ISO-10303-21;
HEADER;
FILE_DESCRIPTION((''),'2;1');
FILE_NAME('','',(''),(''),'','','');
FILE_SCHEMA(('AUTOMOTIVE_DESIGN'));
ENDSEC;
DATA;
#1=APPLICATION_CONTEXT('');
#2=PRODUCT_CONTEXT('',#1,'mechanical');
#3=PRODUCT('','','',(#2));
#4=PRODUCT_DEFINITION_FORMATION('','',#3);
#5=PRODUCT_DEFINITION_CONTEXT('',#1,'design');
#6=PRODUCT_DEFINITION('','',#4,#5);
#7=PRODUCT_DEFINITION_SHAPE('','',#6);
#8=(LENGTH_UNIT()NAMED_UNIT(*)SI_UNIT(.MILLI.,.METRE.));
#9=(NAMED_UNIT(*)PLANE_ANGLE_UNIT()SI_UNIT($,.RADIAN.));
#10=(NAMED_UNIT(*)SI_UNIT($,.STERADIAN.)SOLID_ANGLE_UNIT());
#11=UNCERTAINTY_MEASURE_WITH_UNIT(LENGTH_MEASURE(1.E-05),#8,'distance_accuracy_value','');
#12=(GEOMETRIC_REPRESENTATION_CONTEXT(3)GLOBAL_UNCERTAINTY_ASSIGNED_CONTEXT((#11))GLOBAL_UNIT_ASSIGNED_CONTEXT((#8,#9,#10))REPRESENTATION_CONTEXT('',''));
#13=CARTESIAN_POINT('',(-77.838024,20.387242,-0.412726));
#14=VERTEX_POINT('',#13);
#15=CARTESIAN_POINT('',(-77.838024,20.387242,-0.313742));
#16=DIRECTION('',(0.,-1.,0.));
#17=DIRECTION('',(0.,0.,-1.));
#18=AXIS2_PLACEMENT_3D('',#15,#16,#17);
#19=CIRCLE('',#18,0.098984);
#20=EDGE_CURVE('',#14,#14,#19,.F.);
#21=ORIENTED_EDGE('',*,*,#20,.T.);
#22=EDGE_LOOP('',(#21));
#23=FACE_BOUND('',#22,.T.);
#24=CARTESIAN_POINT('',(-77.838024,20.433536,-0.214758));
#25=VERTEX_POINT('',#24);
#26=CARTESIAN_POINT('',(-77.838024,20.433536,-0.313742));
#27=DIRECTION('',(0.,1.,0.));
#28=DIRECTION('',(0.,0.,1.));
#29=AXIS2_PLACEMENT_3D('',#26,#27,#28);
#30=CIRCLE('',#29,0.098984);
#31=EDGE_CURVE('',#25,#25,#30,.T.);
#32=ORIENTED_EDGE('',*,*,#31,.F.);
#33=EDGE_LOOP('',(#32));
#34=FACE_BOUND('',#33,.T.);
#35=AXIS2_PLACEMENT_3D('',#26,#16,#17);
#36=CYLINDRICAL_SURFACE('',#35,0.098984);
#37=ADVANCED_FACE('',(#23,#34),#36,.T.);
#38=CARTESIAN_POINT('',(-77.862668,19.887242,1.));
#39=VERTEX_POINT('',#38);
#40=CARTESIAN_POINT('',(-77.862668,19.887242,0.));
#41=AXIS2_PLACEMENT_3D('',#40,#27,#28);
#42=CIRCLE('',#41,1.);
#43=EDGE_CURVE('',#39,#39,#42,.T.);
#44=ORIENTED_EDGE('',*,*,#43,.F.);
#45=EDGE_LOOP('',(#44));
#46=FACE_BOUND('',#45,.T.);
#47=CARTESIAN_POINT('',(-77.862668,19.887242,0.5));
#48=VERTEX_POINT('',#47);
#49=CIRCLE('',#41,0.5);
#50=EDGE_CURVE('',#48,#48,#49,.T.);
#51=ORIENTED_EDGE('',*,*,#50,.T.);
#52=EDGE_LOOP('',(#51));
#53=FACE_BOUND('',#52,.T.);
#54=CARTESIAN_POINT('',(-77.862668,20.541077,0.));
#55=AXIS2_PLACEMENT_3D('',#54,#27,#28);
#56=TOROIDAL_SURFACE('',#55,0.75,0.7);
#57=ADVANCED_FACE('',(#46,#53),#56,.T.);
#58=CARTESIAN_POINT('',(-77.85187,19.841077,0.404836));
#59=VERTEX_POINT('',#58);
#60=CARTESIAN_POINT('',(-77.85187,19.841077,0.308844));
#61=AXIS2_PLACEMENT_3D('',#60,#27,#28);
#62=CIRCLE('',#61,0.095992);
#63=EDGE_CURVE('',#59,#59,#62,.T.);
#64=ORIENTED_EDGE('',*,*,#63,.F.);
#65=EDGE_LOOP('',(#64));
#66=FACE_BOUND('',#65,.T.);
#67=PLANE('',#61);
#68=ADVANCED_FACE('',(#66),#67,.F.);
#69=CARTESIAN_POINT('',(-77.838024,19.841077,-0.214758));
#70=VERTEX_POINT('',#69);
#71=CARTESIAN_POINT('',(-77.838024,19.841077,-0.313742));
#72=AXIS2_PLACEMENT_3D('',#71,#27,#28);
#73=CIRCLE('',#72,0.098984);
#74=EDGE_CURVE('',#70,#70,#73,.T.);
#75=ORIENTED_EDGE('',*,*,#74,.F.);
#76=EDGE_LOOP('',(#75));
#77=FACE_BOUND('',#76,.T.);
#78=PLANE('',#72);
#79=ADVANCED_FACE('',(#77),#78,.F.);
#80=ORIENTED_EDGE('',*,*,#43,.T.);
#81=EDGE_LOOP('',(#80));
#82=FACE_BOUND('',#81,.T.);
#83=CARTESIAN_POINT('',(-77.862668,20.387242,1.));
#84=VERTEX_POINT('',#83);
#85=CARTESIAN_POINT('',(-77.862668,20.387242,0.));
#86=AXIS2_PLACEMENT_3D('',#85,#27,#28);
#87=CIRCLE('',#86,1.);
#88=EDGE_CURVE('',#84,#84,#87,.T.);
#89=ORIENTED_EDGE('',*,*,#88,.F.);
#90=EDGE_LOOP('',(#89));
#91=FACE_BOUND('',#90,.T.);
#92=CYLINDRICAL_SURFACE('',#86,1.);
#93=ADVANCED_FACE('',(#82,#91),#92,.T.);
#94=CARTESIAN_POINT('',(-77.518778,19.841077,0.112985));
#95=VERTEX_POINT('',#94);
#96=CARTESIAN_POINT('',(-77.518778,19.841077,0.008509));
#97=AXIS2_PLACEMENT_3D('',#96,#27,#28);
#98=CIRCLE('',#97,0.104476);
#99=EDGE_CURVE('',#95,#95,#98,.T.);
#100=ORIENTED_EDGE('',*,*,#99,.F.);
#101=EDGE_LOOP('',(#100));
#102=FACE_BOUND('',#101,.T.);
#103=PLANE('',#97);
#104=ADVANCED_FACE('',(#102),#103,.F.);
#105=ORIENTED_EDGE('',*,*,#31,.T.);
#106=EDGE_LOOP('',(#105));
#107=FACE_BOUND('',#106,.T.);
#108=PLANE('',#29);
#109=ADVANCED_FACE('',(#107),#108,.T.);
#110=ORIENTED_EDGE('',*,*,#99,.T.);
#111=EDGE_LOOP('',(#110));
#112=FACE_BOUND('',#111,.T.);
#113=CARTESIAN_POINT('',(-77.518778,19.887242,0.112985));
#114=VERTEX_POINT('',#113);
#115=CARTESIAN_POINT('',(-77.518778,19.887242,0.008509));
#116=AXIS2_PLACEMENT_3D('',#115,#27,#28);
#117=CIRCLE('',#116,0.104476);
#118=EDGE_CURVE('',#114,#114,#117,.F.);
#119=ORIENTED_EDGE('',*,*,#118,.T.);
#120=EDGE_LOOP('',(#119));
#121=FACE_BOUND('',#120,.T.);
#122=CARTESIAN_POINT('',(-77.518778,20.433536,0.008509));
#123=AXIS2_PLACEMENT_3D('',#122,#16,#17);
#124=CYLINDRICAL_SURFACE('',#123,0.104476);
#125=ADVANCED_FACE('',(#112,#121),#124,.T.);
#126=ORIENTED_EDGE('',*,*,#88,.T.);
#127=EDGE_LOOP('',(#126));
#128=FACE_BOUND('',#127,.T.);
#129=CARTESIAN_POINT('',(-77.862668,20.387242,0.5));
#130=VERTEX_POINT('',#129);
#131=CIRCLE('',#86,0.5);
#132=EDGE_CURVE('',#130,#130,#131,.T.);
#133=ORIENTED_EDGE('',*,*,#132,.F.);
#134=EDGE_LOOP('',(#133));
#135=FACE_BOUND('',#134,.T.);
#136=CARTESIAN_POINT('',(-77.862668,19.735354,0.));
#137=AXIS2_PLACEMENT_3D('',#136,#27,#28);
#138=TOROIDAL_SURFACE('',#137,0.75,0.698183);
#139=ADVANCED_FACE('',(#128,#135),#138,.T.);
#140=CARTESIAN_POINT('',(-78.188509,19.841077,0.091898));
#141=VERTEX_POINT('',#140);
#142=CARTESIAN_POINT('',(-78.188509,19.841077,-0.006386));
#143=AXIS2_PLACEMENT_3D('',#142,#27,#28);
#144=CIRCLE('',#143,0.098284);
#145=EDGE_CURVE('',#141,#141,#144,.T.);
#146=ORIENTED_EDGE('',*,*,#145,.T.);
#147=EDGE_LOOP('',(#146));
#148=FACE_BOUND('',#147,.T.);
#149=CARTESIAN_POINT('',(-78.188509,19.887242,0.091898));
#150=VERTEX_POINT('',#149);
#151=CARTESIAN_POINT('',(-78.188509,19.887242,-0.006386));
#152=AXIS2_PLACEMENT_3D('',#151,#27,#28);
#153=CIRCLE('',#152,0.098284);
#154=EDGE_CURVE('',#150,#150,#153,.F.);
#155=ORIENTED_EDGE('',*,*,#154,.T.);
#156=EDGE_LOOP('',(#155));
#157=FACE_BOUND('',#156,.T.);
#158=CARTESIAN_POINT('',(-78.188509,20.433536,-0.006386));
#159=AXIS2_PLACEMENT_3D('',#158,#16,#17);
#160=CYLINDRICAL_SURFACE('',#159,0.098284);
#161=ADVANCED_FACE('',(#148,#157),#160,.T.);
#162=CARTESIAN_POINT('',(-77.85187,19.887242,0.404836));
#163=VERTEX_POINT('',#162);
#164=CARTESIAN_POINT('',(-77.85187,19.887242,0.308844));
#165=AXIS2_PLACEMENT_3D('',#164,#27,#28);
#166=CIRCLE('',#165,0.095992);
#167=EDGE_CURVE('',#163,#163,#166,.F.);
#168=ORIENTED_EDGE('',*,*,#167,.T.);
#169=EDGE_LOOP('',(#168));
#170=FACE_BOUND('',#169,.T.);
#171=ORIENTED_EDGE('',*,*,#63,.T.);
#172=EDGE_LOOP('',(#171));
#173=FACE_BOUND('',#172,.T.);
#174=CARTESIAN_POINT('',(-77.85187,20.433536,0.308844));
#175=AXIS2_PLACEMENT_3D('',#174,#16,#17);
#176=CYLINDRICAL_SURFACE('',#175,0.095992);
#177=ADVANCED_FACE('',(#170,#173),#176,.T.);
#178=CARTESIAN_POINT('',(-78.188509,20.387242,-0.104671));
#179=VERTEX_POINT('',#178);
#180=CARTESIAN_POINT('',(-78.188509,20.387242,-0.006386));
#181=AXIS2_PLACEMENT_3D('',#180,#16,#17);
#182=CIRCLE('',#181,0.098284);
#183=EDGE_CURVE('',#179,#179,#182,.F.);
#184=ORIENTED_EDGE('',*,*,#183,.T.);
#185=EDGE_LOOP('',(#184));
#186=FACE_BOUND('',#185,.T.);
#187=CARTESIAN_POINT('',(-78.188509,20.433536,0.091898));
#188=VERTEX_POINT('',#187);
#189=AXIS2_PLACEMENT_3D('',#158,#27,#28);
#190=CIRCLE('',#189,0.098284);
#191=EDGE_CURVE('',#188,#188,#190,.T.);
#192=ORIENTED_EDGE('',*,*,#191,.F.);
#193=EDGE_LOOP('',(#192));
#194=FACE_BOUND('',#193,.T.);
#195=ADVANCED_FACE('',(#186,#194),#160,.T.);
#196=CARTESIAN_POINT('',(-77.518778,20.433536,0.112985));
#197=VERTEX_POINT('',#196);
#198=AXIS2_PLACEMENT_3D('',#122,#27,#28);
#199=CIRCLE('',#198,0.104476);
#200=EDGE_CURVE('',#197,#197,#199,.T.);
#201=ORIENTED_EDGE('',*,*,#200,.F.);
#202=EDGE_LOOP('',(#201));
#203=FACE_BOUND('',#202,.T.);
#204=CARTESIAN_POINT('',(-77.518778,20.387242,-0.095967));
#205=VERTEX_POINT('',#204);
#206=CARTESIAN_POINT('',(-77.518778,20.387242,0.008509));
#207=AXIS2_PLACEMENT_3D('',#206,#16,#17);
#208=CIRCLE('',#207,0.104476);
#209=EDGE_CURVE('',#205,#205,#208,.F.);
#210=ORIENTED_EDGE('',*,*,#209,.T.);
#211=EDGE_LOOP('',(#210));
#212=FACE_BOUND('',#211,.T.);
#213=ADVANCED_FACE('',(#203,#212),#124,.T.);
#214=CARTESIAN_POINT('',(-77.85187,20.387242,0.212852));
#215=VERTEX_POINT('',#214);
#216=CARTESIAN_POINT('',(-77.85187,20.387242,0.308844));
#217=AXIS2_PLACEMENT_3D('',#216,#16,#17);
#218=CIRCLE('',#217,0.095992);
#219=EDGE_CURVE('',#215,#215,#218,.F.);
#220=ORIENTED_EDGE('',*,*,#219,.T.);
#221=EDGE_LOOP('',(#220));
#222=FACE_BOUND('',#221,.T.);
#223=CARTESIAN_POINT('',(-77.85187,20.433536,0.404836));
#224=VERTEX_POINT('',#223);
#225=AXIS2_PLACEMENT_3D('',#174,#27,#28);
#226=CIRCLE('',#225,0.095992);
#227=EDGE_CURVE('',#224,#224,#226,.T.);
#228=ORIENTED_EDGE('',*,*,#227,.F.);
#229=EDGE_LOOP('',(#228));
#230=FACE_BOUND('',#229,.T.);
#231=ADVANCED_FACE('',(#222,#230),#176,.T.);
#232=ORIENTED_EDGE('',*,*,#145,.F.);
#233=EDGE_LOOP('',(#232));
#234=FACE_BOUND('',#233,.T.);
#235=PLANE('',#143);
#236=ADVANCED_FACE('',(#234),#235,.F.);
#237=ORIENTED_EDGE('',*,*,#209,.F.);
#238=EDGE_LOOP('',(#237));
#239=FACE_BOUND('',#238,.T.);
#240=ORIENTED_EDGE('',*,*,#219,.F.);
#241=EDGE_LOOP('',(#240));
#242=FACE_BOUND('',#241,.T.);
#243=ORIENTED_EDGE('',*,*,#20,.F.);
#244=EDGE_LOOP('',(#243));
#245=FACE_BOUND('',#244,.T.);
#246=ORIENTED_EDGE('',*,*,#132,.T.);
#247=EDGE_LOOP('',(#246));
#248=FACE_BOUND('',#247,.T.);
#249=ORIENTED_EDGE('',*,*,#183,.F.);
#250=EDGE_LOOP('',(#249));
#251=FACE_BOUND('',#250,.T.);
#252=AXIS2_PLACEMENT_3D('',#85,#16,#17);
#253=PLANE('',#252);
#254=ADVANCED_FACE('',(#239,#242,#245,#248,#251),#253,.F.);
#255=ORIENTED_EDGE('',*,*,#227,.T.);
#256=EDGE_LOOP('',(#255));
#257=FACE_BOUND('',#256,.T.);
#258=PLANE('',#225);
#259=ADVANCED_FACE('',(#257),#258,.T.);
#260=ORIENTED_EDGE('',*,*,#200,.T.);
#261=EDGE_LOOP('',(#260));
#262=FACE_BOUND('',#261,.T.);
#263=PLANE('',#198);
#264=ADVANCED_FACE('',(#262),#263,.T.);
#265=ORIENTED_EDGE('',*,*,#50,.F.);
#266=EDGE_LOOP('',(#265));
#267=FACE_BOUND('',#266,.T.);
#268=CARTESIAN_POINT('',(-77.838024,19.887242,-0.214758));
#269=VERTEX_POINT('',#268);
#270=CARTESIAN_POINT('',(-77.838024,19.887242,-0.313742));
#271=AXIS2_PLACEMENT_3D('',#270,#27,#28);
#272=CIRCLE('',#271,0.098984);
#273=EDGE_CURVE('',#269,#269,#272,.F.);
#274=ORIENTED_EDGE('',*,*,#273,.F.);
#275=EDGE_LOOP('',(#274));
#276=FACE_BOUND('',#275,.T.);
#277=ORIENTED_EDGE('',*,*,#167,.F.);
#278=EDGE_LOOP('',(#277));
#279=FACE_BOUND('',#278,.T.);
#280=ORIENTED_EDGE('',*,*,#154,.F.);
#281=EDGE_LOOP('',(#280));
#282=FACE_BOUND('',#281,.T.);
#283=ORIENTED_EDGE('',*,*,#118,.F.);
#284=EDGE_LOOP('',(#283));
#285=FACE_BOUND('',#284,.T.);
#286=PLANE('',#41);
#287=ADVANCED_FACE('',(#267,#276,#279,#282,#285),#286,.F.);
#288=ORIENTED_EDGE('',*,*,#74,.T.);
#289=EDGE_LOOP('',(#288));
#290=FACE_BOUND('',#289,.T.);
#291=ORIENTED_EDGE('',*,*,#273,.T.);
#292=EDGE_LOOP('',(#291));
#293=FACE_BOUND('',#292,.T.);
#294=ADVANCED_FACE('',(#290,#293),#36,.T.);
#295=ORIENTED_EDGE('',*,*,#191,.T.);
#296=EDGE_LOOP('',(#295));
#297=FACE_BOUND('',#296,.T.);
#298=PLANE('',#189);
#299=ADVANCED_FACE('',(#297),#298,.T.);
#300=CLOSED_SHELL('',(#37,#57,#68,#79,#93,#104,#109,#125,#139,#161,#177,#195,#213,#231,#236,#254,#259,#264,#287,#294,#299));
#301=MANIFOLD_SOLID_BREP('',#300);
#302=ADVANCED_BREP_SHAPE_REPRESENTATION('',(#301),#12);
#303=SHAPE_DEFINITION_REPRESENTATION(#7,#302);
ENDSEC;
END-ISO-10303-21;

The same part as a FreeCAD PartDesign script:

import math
import FreeCAD as App
import Part
import Sketcher

V = App.Vector

doc = App.newDocument("Part")
body = doc.addObject("PartDesign::Body", "Body")

# Sketch on XY plane
sketch1 = body.newObject("Sketcher::SketchObject", "Sketch")
sketch1.AttachmentSupport = (doc.getObject("XY_Plane"), [""])
sketch1.MapMode = "FlatFace"
sketch1.addGeometry([
    Part.LineSegment(V(-77.4, 20.4, 0), V(-77.9, 20.4, 0)),  # 0
    Part.LineSegment(V(-77.9, 20.4, 0), V(-77.9, 19.9, 0)),  # 1
    Part.LineSegment(V(-77.9, 19.9, 0), V(-77.4, 19.9, 0)),  # 2
    Part.ArcOfCircle(Part.Circle(V(-77.1, 20.5, 0), V(0, 0, 1), 0.7), math.radians(-111), math.radians(-69)),  # 3
    Part.LineSegment(V(-76.9, 19.9, 0), V(-76.9, 20.4, 0)),  # 4
    Part.ArcOfCircle(Part.Circle(V(-77.1, 19.7, 0), V(0, 0, 1), 0.7), math.radians(69), math.radians(111)),  # 5
], False)
sketch1.addGeometry(Part.LineSegment(V(-77.9, 20.5, 0), V(-77.9, 19.7, 0)), True)  # axis
sketch1.addConstraint([
    Sketcher.Constraint("Coincident", 0, 2, 1, 1),
    Sketcher.Constraint("Coincident", 1, 2, 2, 1),
    Sketcher.Constraint("Coincident", 2, 2, 3, 1),
    Sketcher.Constraint("Coincident", 3, 2, 4, 1),
    Sketcher.Constraint("Coincident", 4, 2, 5, 1),
    Sketcher.Constraint("Coincident", 5, 2, 0, 1),
    Sketcher.Constraint("Horizontal", 0),
    Sketcher.Constraint("Vertical", 1),
    Sketcher.Constraint("Horizontal", 2),
    Sketcher.Constraint("Vertical", 4),
    Sketcher.Constraint("Vertical", 6),
    Sketcher.Constraint("Horizontal", 2, 2, 3, 2),
    Sketcher.Constraint("Horizontal", 0, 2, 4, 2),
    Sketcher.Constraint("Horizontal", 3, 3, 6, 1),
    Sketcher.Constraint("Horizontal", 5, 3, 6, 2),
    Sketcher.Constraint("Vertical", 3, 3, 5, 3),
    Sketcher.Constraint("Vertical", 1, 2, 6, 1),
    Sketcher.Constraint("Equal", 2, 1),
    Sketcher.Constraint("Radius", 3, 0.7),
    Sketcher.Constraint("DistanceX", 0, 2, 0, 1, 0.5),
    Sketcher.Constraint("DistanceX", 1, 2, 3, 2, 1.0),
    Sketcher.Constraint("Radius", 5, 0.698183),
    Sketcher.Constraint("DistanceX", 3, 3, -1, 1, 77.112668),
    Sketcher.Constraint("DistanceY", -1, 1, 3, 3, 20.541077),
])
revolution = body.newObject("PartDesign::Revolution", "Revolution")
revolution.Profile = sketch1
revolution.ReferenceAxis = (sketch1, ["Axis0"])
revolution.Angle = 360

# Sketch on XZ plane
sketch2 = body.newObject("Sketcher::SketchObject", "Sketch001")
sketch2.AttachmentSupport = (doc.getObject("XZ_Plane"), [""])
sketch2.MapMode = "FlatFace"
sketch2.AttachmentOffset = App.Placement(V(0, 0, -20.387242), App.Rotation())
sketch2.addGeometry([
    Part.Circle(V(-77.84, -0.31, 0), V(0, 0, 1), 0.1),
    Part.Circle(V(-77.52, 0.01, 0), V(0, 0, 1), 0.1),
    Part.Circle(V(-77.85, 0.31, 0), V(0, 0, 1), 0.1),
    Part.Circle(V(-78.19, -0.01, 0), V(0, 0, 1), 0.1),
], False)
sketch2.addConstraint([
    Sketcher.Constraint("Diameter", 0, 0.197969),
    Sketcher.Constraint("Diameter", 1, 0.208952),
    Sketcher.Constraint("Diameter", 3, 0.196569),
    Sketcher.Constraint("Diameter", 2, 0.191984),
    Sketcher.Constraint("DistanceY", -1, 1, 1, 3, 0.008509),
    Sketcher.Constraint("DistanceX", 2, 3, -1, 1, 77.85187),
    Sketcher.Constraint("DistanceX", 3, 3, -1, 1, 78.188509),
    Sketcher.Constraint("DistanceY", 0, 3, 1, 3, 0.322251),
    Sketcher.Constraint("DistanceY", 3, 3, 2, 3, 0.31523),
    Sketcher.Constraint("DistanceX", 3, 3, 1, 3, 0.669732),
    Sketcher.Constraint("DistanceX", 0, 3, -1, 1, 77.838024),
    Sketcher.Constraint("DistanceY", -1, 1, 2, 3, 0.308844),
])
pad1 = body.newObject("PartDesign::Pad", "Pad")
pad1.Profile = sketch2
pad1.Type = "TwoLengths"
pad1.Length = 0.046294
pad1.Length2 = 0.546165
pad1.Reversed = True

doc.recompute()
